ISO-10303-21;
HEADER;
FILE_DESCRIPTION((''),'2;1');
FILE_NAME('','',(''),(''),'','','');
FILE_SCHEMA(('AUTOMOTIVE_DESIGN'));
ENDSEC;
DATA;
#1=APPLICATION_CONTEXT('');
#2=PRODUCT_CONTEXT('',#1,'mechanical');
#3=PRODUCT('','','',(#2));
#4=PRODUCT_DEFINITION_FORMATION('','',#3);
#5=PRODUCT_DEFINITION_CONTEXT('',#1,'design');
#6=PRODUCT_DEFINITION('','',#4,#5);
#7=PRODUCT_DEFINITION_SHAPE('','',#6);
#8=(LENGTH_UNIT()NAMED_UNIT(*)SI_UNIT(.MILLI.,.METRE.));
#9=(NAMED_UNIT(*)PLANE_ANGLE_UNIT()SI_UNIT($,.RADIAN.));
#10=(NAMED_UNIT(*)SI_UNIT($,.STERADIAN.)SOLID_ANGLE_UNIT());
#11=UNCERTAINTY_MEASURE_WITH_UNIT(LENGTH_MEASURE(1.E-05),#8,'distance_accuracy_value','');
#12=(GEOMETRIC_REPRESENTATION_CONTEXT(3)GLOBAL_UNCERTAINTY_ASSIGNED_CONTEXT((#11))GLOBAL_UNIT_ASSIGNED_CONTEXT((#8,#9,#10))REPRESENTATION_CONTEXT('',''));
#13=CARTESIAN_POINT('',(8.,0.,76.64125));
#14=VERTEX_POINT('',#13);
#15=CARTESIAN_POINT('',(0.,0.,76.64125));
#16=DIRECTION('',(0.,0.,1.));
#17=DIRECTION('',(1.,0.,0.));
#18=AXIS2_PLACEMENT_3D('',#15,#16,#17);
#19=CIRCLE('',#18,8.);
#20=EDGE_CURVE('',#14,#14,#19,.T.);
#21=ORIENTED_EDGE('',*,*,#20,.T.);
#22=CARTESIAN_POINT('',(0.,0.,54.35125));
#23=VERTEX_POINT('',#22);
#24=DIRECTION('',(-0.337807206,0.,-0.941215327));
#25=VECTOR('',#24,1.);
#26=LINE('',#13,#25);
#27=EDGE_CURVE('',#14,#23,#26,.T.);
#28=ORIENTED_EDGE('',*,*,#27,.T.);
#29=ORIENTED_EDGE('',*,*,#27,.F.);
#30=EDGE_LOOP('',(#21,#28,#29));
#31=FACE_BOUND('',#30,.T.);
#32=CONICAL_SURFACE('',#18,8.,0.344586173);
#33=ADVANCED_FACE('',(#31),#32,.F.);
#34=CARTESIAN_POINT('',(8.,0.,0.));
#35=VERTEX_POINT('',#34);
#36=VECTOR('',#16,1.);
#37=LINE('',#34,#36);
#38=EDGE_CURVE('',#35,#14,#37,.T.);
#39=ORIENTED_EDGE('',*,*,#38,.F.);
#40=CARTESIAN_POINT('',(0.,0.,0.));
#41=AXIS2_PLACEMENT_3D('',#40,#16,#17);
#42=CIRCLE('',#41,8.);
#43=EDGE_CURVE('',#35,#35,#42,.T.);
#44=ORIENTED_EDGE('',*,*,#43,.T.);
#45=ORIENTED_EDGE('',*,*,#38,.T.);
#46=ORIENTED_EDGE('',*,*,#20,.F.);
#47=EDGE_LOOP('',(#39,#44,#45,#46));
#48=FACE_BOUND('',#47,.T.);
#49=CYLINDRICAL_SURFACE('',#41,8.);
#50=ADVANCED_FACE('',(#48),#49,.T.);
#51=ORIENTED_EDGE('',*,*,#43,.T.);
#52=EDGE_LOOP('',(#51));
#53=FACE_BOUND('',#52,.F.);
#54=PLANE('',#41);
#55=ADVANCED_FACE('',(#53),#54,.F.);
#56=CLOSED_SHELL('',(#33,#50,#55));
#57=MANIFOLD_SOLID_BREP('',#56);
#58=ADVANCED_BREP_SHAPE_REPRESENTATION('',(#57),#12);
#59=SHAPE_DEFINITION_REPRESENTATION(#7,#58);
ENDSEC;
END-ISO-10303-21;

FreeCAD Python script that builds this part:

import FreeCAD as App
import Part
import Sketcher
Q = App.Units.Quantity

doc = App.newDocument("Part")
params = doc.addObject("Spreadsheet::Sheet", "Params")
for row, (alias, value) in enumerate([
    ("sketch1_width", "8 mm"),
    ("revolution_angle", "360 deg"),
], start=1):
    params.set(f"A{row}", alias)
    params.set(f"B{row}", "=" + value)
    params.setAlias(f"B{row}", alias)

body = doc.addObject("PartDesign::Body", "Body")

# Sketch on XZ plane
sketch1 = body.newObject("Sketcher::SketchObject", "Sketch")
sketch1.AttachmentSupport = (doc.getObject("XZ_Plane"), [""])
sketch1.MapMode = "FlatFace"
sketch1.addGeometry(Part.LineSegment(App.Vector(0, 0, 0), App.Vector(8, 0, 0)), False)
sketch1.addGeometry(Part.LineSegment(App.Vector(8, 0, 0), App.Vector(8, 76.64125, 0)), False)
sketch1.addGeometry(Part.LineSegment(App.Vector(8, 76.64125, 0), App.Vector(0, 54.35125, 0)), False)
sketch1.addGeometry(Part.LineSegment(App.Vector(0, 54.35125, 0), App.Vector(0, 0, 0)), False)
sketch1.addConstraint(Sketcher.Constraint("Coincident", 0, 2, 1, 1))
sketch1.addConstraint(Sketcher.Constraint("Coincident", 1, 2, 2, 1))
sketch1.addConstraint(Sketcher.Constraint("Coincident", 2, 2, 3, 1))
sketch1.addConstraint(Sketcher.Constraint("Coincident", 3, 2, 0, 1))
sketch1.addConstraint(Sketcher.Constraint("Horizontal", 0))
sketch1.addConstraint(Sketcher.Constraint("Vertical", 1))
sketch1.addConstraint(Sketcher.Constraint("Vertical", 3))
sketch1.addConstraint(Sketcher.Constraint("Coincident", 3, 2, -1, 1))
sketch1.addConstraint(Sketcher.Constraint("DistanceX", 0, 1, 0, 2, Q("8 mm")))
sketch1.addConstraint(Sketcher.Constraint("DistanceY", 2, 2, 1, 2, Q("22.29 mm")))
sketch1.addConstraint(Sketcher.Constraint("DistanceY", 1, 1, 1, 2, Q("76.64125 mm")))
sketch1.setExpression("Constraints[8]", "Params.sketch1_width")
revolution = body.newObject("PartDesign::Revolution", "Revolution")
revolution.Profile = sketch1
revolution.ReferenceAxis = (sketch1, ["V_Axis"])
revolution.setExpression("Angle", "Params.revolution_angle")

doc.recompute()
